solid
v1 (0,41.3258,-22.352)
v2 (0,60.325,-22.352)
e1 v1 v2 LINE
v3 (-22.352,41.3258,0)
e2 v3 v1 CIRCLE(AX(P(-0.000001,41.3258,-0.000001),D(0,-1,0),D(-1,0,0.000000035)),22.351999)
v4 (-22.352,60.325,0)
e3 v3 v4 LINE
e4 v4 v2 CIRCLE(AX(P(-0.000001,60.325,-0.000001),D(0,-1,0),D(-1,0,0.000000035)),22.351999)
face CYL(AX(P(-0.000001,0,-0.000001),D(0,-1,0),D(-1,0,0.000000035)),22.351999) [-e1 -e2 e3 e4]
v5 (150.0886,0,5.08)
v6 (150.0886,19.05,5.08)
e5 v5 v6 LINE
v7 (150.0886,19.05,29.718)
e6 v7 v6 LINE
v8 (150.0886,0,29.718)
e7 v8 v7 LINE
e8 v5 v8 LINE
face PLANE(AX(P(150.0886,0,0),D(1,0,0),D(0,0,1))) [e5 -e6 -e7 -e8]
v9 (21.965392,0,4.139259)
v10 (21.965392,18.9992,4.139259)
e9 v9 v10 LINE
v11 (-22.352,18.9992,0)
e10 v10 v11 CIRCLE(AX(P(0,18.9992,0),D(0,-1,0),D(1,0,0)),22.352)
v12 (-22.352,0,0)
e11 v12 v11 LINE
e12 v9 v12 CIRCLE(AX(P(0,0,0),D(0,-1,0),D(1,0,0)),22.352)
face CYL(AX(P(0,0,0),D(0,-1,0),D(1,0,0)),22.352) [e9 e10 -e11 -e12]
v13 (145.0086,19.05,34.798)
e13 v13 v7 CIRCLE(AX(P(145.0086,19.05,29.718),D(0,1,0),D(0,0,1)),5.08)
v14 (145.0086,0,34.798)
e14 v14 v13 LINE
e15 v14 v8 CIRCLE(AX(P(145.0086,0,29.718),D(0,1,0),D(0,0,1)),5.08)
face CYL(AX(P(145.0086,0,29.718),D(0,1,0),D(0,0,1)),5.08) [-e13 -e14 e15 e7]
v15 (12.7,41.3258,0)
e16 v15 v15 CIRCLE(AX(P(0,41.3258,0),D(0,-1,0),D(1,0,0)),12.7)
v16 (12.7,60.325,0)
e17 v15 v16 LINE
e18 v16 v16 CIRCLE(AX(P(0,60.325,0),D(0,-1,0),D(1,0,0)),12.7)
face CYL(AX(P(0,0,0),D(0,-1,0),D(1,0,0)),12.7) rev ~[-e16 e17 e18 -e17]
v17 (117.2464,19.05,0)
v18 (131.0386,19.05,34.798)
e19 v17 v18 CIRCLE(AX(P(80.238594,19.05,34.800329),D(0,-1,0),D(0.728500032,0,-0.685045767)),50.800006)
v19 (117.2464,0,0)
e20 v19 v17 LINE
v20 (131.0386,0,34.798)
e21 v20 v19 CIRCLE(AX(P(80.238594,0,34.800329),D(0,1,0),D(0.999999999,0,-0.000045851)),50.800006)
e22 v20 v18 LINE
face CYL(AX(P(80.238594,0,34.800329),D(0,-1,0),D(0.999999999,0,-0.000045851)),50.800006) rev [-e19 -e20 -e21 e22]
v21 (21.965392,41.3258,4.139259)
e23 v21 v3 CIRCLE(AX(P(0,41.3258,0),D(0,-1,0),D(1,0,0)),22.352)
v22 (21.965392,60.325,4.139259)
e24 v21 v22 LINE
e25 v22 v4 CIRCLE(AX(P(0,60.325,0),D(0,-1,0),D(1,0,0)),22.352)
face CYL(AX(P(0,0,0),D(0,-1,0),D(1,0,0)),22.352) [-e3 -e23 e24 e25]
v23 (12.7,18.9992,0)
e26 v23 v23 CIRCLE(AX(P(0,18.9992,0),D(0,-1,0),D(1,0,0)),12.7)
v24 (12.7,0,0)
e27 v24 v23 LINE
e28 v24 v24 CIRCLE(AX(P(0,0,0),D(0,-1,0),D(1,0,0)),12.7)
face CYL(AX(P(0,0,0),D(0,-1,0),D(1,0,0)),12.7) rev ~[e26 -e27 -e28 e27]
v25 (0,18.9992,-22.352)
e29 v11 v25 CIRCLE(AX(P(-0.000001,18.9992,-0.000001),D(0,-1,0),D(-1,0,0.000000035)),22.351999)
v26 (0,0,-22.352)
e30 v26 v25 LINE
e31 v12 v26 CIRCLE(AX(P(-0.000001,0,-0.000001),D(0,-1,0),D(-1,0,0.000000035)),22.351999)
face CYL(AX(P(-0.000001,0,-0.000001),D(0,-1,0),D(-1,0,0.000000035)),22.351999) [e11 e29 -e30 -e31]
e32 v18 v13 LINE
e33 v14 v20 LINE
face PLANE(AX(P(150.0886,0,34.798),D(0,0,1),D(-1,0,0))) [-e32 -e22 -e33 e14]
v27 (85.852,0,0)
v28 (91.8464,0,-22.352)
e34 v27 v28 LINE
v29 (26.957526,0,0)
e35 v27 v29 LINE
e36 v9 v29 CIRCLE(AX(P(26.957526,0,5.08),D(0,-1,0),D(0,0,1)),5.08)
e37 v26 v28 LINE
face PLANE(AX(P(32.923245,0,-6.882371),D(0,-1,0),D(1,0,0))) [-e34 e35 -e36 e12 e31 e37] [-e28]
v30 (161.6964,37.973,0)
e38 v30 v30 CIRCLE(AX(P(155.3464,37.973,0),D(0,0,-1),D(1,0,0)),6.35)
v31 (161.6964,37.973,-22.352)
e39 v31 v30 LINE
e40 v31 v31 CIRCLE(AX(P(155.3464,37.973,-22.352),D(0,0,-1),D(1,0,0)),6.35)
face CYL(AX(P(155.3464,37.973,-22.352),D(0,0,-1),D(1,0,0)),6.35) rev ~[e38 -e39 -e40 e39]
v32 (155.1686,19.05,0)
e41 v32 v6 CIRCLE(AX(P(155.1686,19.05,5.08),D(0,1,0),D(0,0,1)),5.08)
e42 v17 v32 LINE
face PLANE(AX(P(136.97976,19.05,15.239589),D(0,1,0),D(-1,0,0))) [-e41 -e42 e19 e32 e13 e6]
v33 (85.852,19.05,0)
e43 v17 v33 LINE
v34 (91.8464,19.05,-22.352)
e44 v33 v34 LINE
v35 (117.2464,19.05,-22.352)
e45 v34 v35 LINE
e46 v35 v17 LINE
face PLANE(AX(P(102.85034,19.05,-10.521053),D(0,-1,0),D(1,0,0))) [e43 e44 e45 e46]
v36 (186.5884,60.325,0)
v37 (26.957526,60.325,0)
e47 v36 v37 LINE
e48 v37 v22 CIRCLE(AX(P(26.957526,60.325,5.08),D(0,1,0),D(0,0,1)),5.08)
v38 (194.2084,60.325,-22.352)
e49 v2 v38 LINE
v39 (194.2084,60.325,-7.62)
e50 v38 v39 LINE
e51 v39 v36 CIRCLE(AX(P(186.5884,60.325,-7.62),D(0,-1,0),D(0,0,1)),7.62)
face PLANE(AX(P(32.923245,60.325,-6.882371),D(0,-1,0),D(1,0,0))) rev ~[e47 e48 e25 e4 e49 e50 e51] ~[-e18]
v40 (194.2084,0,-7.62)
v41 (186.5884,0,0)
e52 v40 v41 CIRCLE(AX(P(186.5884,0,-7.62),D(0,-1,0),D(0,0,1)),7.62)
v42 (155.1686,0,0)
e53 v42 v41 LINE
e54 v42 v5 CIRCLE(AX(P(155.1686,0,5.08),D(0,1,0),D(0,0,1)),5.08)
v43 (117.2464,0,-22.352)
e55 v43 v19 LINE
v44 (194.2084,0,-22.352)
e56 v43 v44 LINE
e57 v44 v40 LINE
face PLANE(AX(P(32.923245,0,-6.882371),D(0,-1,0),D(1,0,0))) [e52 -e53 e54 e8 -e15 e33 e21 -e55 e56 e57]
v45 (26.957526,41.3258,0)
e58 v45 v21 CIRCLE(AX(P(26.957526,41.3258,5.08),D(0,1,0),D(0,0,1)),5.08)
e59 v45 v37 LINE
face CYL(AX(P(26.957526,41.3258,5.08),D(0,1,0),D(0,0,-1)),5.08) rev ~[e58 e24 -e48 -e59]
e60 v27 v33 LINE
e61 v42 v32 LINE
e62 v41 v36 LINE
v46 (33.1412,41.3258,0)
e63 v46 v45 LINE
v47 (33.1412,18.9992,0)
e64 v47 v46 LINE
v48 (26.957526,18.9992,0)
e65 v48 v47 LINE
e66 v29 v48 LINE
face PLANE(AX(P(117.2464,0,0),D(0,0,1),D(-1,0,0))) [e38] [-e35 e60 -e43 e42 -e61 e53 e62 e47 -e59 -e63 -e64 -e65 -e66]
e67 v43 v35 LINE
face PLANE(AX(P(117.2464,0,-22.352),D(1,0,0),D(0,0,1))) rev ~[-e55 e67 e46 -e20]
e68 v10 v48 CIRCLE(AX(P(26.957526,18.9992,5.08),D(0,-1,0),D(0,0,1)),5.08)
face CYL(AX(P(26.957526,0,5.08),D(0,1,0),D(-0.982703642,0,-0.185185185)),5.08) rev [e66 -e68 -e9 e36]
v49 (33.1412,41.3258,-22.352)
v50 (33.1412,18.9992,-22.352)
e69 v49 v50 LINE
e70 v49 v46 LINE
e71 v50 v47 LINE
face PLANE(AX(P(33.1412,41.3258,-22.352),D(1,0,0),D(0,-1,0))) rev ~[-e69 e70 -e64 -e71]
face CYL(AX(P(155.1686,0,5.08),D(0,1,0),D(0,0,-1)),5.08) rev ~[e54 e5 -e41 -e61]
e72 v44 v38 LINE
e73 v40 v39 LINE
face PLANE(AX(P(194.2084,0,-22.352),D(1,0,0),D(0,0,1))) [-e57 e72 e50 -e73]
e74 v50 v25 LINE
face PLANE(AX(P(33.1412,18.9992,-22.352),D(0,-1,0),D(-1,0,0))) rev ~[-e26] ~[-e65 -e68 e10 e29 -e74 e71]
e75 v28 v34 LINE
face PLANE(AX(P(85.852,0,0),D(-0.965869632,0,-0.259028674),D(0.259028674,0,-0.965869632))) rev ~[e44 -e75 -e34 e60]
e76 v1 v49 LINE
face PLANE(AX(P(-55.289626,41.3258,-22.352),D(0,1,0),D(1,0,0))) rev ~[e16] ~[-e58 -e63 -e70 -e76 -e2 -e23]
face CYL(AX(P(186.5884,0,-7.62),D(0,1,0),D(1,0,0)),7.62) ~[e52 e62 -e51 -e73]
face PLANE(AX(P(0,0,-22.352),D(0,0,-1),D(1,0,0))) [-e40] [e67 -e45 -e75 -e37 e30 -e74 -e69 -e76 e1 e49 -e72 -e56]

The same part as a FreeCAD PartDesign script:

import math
import FreeCAD as App
import Part
import Sketcher
Q = App.Units.Quantity


def edges_at(feature, points):
    """Names of the edges that pass closest to the given points."""
    edges = feature.Shape.Edges
    near = lambda p: min(range(len(edges)), key=lambda i: edges[i].distToShape(Part.Vertex(*p))[0])
    return sorted({f"Edge{near(p) + 1}" for p in points})

doc = App.newDocument("Part")
body = doc.addObject("PartDesign::Body", "Body")

# Sketch on XZ plane
sketch1 = body.newObject("Sketcher::SketchObject", "Sketch")
sketch1.AttachmentSupport = (doc.getObject("XZ_Plane"), [""])
sketch1.MapMode = "FlatFace"
sketch1.addGeometry([
    Part.ArcOfCircle(Part.Circle(App.Vector(0, 0, 0), App.Vector(0, 0, 1), 22.352), math.radians(0), math.radians(180)),  # 0
    Part.ArcOfCircle(Part.Circle(App.Vector(-0.000001, -0.000001, 0), App.Vector(0, 0, 1), 22.351999), math.radians(179.999998), math.radians(270.000002)),  # 1
    Part.LineSegment(App.Vector(0, -22.352, 0), App.Vector(194.2084, -22.352, 0)),  # 2
    Part.LineSegment(App.Vector(194.2084, -22.352, 0), App.Vector(194.2084, 0, 0)),  # 3
    Part.LineSegment(App.Vector(194.2084, 0, 0), App.Vector(150.0886, 0, 0)),  # 4
    Part.LineSegment(App.Vector(150.0886, 0, 0), App.Vector(150.0886, 34.798, 0)),  # 5
    Part.LineSegment(App.Vector(150.0886, 34.798, 0), App.Vector(131.0386, 34.798, 0)),  # 6
    Part.ArcOfCircle(Part.Circle(App.Vector(80.238594, 34.800329, 0), App.Vector(0, 0, 1), 50.800006), math.radians(-43.239207), math.radians(-0.002627)),  # 7
    Part.LineSegment(App.Vector(117.2464, 0, 0), App.Vector(22.352, 0, 0)),  # 8
    Part.Circle(App.Vector(0, 0, 0), App.Vector(0, 0, 1), 12.7),  # 9
], False)
sketch1.addConstraint([
    Sketcher.Constraint("Tangent", 0, 2, 1, 1),
    Sketcher.Constraint("Tangent", 1, 2, 2, 1),
    Sketcher.Constraint("Coincident", 2, 2, 3, 1),
    Sketcher.Constraint("Coincident", 3, 2, 4, 1),
    Sketcher.Constraint("Coincident", 4, 2, 5, 1),
    Sketcher.Constraint("Coincident", 5, 2, 6, 1),
    Sketcher.Constraint("Coincident", 6, 2, 7, 2),
    Sketcher.Constraint("Coincident", 7, 1, 8, 1),
    Sketcher.Constraint("Coincident", 8, 2, 0, 1),
    Sketcher.Constraint("Horizontal", 2),
    Sketcher.Constraint("Vertical", 3),
    Sketcher.Constraint("Horizontal", 4),
    Sketcher.Constraint("Vertical", 5),
    Sketcher.Constraint("Horizontal", 6),
    Sketcher.Constraint("Horizontal", 8),
    Sketcher.Constraint("Coincident", 0, 3, -1, 1),
    Sketcher.Constraint("Coincident", 9, 3, -1, 1),
    Sketcher.Constraint("Equal", 0, 1),
    Sketcher.Constraint("PointOnObject", 0, 2, -1),
    Sketcher.Constraint("PointOnObject", 3, 2, -1),
    Sketcher.Constraint("PointOnObject", 7, 1, -1),
    Sketcher.Constraint("Diameter", 9, Q("1 in")),
    Sketcher.Constraint("Radius", 0, Q("0.88 in")),
    Sketcher.Constraint("DistanceX", 6, 2, 6, 1, Q("0.75 in")),
    Sketcher.Constraint("DistanceY", 5, 1, 5, 2, Q("1.37 in")),
    Sketcher.Constraint("DistanceX", 2, 1, 2, 2, Q("7.646 in")),
    Sketcher.Constraint("DistanceX", 4, 2, 4, 1, Q("1.737 in")),
    Sketcher.Constraint("DistanceX", 8, 2, 8, 1, Q("3.736 in")),
    Sketcher.Constraint("Radius", 7, 50.800006),
])
pad1 = body.newObject("PartDesign::Pad", "Pad")
pad1.Profile = sketch1
pad1.Length = Q("2.375 in")
pad1.Reversed = True

# Sketch on XZ plane
sketch2 = body.newObject("Sketcher::SketchObject", "Sketch001")
sketch2.AttachmentSupport = (doc.getObject("XZ_Plane"), [""])
sketch2.MapMode = "FlatFace"
sketch2.addGeometry([
    Part.LineSegment(App.Vector(85.852, 0, 0), App.Vector(91.8464, -22.352, 0)),
    Part.LineSegment(App.Vector(91.8464, -22.352, 0), App.Vector(117.2464, -22.352, 0)),
    Part.LineSegment(App.Vector(117.2464, -22.352, 0), App.Vector(117.2464, 0, 0)),
    Part.LineSegment(App.Vector(117.2464, 0, 0), App.Vector(85.852, 0, 0)),
], False)
sketch2.addConstraint([
    Sketcher.Constraint("Coincident", 0, 2, 1, 1),
    Sketcher.Constraint("Coincident", 1, 2, 2, 1),
    Sketcher.Constraint("Coincident", 2, 2, 3, 1),
    Sketcher.Constraint("Coincident", 3, 2, 0, 1),
    Sketcher.Constraint("Horizontal", 1),
    Sketcher.Constraint("Vertical", 2),
    Sketcher.Constraint("Horizontal", 3),
    Sketcher.Constraint("PointOnObject", 2, 2, -1),
    Sketcher.Constraint("DistanceX", 1, 1, 1, 2, Q("1 in")),
    Sketcher.Constraint("DistanceY", 2, 1, 2, 2, Q("0.88 in")),
    Sketcher.Constraint("DistanceX", 3, 2, 3, 1, Q("1.236 in")),
    Sketcher.Constraint("DistanceX", -1, 1, 3, 2, Q("3.38 in")),
])
pocket1 = body.newObject("PartDesign::Pocket", "Pocket")
pocket1.Profile = sketch2
pocket1.Length = Q("0.75 in")

# Sketch on XY plane
sketch3 = body.newObject("Sketcher::SketchObject", "Sketch002")
sketch3.AttachmentSupport = (doc.getObject("XY_Plane"), [""])
sketch3.MapMode = "FlatFace"
sketch3.AttachmentOffset = App.Placement(App.Vector(0, 0, -0.88 * 25.4), App.Rotation())
sketch3.addGeometry([
    Part.LineSegment(App.Vector(33.1412, 41.3258, 0), App.Vector(33.1412, 18.9992, 0)),  # 0
    Part.LineSegment(App.Vector(33.1412, 18.9992, 0), App.Vector(-55.289626, 18.9992, 0)),  # 1
    Part.LineSegment(App.Vector(-55.289626, 18.9992, 0), App.Vector(-55.289626, 41.3258, 0)),  # 2
    Part.LineSegment(App.Vector(-55.289626, 41.3258, 0), App.Vector(33.1412, 41.3258, 0)),  # 3
    Part.Circle(App.Vector(155.3464, 37.973, 0), App.Vector(0, 0, 1), 6.35),  # 4
], False)
sketch3.addConstraint([
    Sketcher.Constraint("Coincident", 0, 2, 1, 1),
    Sketcher.Constraint("Coincident", 1, 2, 2, 1),
    Sketcher.Constraint("Coincident", 2, 2, 3, 1),
    Sketcher.Constraint("Coincident", 3, 2, 0, 1),
    Sketcher.Constraint("Vertical", 0),
    Sketcher.Constraint("Horizontal", 1),
    Sketcher.Constraint("Vertical", 2),
    Sketcher.Constraint("Horizontal", 3),
    Sketcher.Constraint("Diameter", 4, Q("0.5 in")),
    Sketcher.Constraint("DistanceY", 0, 2, 0, 1, Q("0.879 in")),
    Sketcher.Constraint("DistanceX", -1, 1, 4, 3, Q("6.116 in")),
    Sketcher.Constraint("DistanceY", -1, 1, 4, 3, Q("1.495 in")),
    Sketcher.Constraint("DistanceY", -1, 1, 0, 2, Q("0.748 in")),
    Sketcher.Constraint("DistanceX", -1, 1, 0, 2, 33.1412),
    Sketcher.Constraint("DistanceX", 1, 2, 1, 1, 88.430826),
])
pocket2 = body.newObject("PartDesign::Pocket", "Pocket001")
pocket2.Profile = sketch3
pocket2.Type = "ThroughAll"
pocket2.Reversed = True

# Sketch on XZ plane
sketch4 = body.newObject("Sketcher::SketchObject", "Sketch003")
sketch4.AttachmentSupport = (doc.getObject("XZ_Plane"), [""])
sketch4.MapMode = "FlatFace"
sketch4.AttachmentOffset = App.Placement(App.Vector(0, 0, -2.375 * 25.4), App.Rotation())
sketch4.addGeometry([
    Part.LineSegment(App.Vector(150.0886, 0, 0), App.Vector(117.2464, 0, 0)),
    Part.ArcOfCircle(Part.Circle(App.Vector(80.238594, 34.800329, 0), App.Vector(0, 0, 1), 50.800006), math.radians(-43.239207), math.radians(-0.002627)),
    Part.LineSegment(App.Vector(131.0386, 34.798, 0), App.Vector(150.0886, 34.798, 0)),
    Part.LineSegment(App.Vector(150.0886, 34.798, 0), App.Vector(150.0886, 0, 0)),
], False)
sketch4.addConstraint([
    Sketcher.Constraint("Coincident", 0, 2, 1, 1),
    Sketcher.Constraint("Coincident", 1, 2, 2, 1),
    Sketcher.Constraint("Coincident", 2, 2, 3, 1),
    Sketcher.Constraint("Coincident", 3, 2, 0, 1),
    Sketcher.Constraint("Horizontal", 0),
    Sketcher.Constraint("Horizontal", 2),
    Sketcher.Constraint("Vertical", 3),
    Sketcher.Constraint("PointOnObject", 0, 2, -1),
    Sketcher.Constraint("DistanceX", 2, 1, 2, 2, Q("0.75 in")),
    Sketcher.Constraint("DistanceY", 3, 2, 3, 1, Q("1.37 in")),
    Sketcher.Constraint("DistanceX", 0, 2, 0, 1, Q("1.293 in")),
    Sketcher.Constraint("DistanceX", -1, 1, 0, 2, Q("4.616 in")),
    Sketcher.Constraint("Radius", 1, 50.800006),
])
pocket3 = body.newObject("PartDesign::Pocket", "Pocket002")
pocket3.Profile = sketch4
pocket3.Length = Q("1.625 in")
pocket3.Reversed = True
doc.recompute()

fillet = body.newObject("PartDesign::Fillet", "Fillet")
fillet.Base = (pocket3, edges_at(pocket3, [
    (22.352, 9.5, 0),
    (22.352, 50.825, 0),
    (150.089, 9.525, 34.798),
    (150.089, 9.525, 0),
]))
fillet.Radius = Q("0.2 in")
doc.recompute()

fillet2 = body.newObject("PartDesign::Fillet", "Fillet001")
fillet2.Base = (fillet, edges_at(fillet, [(194.208, 30.163, 0)]))
fillet2.Radius = Q("0.3 in")

doc.recompute()
